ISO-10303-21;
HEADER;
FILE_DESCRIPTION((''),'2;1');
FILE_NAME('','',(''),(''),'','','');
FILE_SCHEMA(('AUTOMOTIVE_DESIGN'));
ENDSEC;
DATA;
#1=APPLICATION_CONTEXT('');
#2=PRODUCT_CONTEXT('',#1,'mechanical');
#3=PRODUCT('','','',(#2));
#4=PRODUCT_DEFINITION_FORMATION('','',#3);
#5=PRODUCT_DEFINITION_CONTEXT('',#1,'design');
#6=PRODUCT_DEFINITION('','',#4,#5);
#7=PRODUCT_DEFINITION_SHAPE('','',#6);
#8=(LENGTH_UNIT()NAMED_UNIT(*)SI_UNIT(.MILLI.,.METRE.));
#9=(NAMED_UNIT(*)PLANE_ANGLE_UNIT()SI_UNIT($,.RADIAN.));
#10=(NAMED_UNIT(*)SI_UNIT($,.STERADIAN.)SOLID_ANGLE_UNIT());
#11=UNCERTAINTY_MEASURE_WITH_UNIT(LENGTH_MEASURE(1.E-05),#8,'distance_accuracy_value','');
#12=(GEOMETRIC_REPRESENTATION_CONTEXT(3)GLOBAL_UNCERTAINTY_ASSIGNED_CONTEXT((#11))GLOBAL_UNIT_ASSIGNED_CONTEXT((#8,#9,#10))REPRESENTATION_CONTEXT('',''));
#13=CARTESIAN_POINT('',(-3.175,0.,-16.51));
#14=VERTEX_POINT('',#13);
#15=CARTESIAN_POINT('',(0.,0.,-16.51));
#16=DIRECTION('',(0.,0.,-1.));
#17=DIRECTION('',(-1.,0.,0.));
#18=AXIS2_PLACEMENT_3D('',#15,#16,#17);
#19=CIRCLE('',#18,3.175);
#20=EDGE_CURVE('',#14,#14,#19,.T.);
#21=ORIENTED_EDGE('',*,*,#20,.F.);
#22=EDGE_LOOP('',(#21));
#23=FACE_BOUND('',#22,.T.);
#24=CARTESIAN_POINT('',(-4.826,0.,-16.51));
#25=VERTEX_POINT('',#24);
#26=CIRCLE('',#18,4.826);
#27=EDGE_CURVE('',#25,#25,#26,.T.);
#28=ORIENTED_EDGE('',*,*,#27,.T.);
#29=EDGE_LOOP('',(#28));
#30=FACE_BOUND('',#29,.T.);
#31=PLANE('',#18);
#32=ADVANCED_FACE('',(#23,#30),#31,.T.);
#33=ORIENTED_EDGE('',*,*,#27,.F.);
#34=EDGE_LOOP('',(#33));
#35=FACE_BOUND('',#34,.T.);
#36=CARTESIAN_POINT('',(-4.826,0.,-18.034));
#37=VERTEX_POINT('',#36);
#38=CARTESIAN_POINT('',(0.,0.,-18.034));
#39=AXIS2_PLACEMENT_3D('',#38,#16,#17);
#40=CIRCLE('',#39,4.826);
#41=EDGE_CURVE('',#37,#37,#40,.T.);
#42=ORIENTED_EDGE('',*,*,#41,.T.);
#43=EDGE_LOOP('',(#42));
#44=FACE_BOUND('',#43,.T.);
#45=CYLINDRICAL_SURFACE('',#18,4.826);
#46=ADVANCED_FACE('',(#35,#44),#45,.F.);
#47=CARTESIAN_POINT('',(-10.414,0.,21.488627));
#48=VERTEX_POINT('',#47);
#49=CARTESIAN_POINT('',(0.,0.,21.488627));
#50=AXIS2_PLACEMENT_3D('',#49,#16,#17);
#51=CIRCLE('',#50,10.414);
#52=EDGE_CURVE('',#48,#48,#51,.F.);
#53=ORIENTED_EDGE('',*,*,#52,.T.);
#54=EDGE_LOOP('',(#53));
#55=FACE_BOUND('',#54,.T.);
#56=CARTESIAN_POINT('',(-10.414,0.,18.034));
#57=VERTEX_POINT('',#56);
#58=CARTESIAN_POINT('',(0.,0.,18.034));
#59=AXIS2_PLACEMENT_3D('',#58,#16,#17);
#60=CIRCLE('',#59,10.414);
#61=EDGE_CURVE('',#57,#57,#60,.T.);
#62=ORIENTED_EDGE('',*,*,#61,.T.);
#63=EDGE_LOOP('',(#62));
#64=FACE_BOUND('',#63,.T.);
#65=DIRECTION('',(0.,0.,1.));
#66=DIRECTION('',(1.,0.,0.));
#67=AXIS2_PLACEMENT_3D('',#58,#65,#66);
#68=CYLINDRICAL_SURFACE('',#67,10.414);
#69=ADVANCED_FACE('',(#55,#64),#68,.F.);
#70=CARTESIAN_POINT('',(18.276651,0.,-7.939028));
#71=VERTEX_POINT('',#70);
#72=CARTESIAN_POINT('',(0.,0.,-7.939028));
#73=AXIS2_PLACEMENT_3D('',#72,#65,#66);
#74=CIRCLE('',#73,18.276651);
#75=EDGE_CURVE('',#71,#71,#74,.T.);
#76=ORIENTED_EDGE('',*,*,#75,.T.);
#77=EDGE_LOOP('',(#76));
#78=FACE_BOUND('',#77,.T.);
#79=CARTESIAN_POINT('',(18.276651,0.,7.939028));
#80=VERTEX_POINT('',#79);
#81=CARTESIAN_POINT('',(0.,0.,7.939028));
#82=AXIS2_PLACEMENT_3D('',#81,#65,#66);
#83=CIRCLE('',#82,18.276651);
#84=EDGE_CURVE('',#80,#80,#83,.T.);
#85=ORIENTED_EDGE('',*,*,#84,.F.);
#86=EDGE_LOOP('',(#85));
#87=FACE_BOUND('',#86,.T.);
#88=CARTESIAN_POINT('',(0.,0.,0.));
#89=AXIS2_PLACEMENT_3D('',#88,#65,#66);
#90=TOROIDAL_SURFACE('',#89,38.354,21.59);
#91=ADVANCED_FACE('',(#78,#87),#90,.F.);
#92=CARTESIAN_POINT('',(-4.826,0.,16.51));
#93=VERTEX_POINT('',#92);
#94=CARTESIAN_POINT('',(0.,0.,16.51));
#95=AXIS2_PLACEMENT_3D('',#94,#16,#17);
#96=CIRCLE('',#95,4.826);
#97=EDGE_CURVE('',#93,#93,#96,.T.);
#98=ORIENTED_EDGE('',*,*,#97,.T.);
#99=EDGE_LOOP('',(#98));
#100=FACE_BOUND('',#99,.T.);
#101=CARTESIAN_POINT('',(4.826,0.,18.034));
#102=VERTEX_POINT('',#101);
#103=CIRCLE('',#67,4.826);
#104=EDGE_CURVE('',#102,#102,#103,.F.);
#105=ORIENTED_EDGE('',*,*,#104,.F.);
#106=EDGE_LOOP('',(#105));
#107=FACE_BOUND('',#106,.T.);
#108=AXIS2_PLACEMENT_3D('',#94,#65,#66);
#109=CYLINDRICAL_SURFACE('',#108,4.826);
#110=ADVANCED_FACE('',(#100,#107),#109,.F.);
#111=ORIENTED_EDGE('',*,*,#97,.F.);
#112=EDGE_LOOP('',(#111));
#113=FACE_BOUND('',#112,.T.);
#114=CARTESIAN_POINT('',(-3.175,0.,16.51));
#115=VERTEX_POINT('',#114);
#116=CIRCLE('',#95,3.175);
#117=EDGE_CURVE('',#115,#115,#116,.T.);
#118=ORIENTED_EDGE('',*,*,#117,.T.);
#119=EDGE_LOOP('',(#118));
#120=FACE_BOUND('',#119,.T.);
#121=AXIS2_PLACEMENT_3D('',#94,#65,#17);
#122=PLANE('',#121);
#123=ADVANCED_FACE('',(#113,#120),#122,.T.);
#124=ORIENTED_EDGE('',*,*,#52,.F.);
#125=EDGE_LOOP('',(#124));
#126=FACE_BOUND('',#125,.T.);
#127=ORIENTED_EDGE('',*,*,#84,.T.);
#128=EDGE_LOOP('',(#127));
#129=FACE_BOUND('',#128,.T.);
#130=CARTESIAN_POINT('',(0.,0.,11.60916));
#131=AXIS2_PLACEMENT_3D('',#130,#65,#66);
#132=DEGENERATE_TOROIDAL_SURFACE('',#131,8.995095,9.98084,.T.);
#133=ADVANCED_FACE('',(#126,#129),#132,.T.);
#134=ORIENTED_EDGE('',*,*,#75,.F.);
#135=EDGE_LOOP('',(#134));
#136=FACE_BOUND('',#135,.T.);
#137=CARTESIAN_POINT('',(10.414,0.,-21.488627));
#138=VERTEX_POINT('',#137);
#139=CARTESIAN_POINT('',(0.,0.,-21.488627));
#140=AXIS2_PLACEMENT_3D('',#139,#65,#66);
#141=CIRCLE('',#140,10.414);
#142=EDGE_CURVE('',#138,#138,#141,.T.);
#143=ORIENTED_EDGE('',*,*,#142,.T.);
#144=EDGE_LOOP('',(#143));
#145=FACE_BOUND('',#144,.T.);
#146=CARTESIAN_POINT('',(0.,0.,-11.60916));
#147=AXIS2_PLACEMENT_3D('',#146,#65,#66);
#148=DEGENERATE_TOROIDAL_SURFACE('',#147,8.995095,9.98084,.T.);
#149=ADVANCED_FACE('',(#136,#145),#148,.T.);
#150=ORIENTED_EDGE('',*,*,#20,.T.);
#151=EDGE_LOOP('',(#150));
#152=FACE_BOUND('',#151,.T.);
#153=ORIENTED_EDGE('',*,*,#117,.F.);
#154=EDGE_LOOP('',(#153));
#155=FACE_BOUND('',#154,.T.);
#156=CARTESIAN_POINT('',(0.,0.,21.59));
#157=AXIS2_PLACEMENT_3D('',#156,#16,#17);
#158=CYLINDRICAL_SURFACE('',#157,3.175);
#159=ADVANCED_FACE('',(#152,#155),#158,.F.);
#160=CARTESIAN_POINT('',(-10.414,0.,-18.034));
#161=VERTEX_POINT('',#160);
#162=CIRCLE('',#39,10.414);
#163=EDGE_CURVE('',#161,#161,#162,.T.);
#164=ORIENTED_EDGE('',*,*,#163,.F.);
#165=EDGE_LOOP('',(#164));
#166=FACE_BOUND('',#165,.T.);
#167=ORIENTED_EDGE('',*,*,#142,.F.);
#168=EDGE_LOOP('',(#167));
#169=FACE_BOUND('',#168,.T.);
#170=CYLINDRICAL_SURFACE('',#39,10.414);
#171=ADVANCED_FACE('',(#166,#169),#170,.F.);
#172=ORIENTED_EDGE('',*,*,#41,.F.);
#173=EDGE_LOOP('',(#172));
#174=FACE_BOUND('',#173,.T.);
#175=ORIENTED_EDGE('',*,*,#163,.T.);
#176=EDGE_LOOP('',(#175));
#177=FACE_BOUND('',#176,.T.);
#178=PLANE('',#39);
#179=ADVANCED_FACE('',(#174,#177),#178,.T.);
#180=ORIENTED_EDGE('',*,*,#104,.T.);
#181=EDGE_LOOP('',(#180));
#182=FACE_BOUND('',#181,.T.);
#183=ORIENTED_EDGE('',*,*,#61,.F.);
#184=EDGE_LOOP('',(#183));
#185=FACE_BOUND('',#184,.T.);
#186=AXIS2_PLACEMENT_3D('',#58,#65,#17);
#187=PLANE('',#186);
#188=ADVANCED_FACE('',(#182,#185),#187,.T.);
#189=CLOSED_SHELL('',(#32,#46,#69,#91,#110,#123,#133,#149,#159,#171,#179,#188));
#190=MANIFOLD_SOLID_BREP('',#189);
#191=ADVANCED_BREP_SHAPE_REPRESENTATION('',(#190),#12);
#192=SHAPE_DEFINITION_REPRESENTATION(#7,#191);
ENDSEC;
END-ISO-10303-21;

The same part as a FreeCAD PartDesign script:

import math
import FreeCAD as App
import Part
import Sketcher
Q = App.Units.Quantity

doc = App.newDocument("Part")
body = doc.addObject("PartDesign::Body", "Body")

# Sketch on XZ plane
sketch1 = body.newObject("Sketcher::SketchObject", "Sketch")
sketch1.AttachmentSupport = (doc.getObject("XZ_Plane"), [""])
sketch1.MapMode = "FlatFace"
sketch1.addGeometry(Part.LineSegment(App.Vector(-9, 22, 0), App.Vector(0, 22, 0)), False)
sketch1.addGeometry(Part.LineSegment(App.Vector(0, 22, 0), App.Vector(0, -22, 0)), False)
sketch1.addGeometry(Part.LineSegment(App.Vector(0, -22, 0), App.Vector(-9, -22, 0)), False)
sketch1.addGeometry(Part.ArcOfCircle(Part.Circle(App.Vector(-9, -12, 0), App.Vector(0, 0, 1), 10), math.radians(158), math.radians(270)), False)
sketch1.addGeometry(Part.ArcOfCircle(Part.Circle(App.Vector(-38, 0, 0), App.Vector(0, 0, 1), 22), math.radians(-22), math.radians(0)), False)
sketch1.addGeometry(Part.ArcOfCircle(Part.Circle(App.Vector(-38, 0, 0), App.Vector(0, 0, 1), 22), math.radians(0), math.radians(22)), False)
sketch1.addGeometry(Part.ArcOfCircle(Part.Circle(App.Vector(-9, 12, 0), App.Vector(0, 0, 1), 10), math.radians(152), math.radians(202)), False)
sketch1.addGeometry(Part.ArcOfCircle(Part.Circle(App.Vector(-9, 12, 0), App.Vector(0, 0, 1), 10), math.radians(90), math.radians(152)), False)
sketch1.addConstraint(Sketcher.Constraint("Coincident", 0, 2, 1, 1))
sketch1.addConstraint(Sketcher.Constraint("Coincident", 1, 2, 2, 1))
sketch1.addConstraint(Sketcher.Constraint("Tangent", 2, 2, 3, 2))
sketch1.addConstraint(Sketcher.Constraint("Tangent", 3, 1, 4, 1))
sketch1.addConstraint(Sketcher.Constraint("Tangent", 4, 2, 5, 1))
sketch1.addConstraint(Sketcher.Constraint("Tangent", 5, 2, 6, 2))
sketch1.addConstraint(Sketcher.Constraint("Tangent", 6, 1, 7, 2))
sketch1.addConstraint(Sketcher.Constraint("Tangent", 7, 1, 0, 1))
sketch1.addConstraint(Sketcher.Constraint("Horizontal", 0))
sketch1.addConstraint(Sketcher.Constraint("Vertical", 1))
sketch1.addConstraint(Sketcher.Constraint("Horizontal", 2))
sketch1.addConstraint(Sketcher.Constraint("Equal", 4, 5))
sketch1.addConstraint(Sketcher.Constraint("Equal", 3, 6))
sketch1.addConstraint(Sketcher.Constraint("Equal", 6, 7))
sketch1.addConstraint(Sketcher.Constraint("Symmetric", 0, 2, 1, 2, -1, 1))
sketch1.addConstraint(Sketcher.Constraint("PointOnObject", 4, 3, -1))
sketch1.addConstraint(Sketcher.Constraint("PointOnObject", 4, 2, -1))
sketch1.addConstraint(Sketcher.Constraint("Radius", 4, Q("0.85 in")))
sketch1.addConstraint(Sketcher.Constraint("DistanceY", 1, 2, 1, 1, Q("1.7 in")))
sketch1.addConstraint(Sketcher.Constraint("DistanceX", 4, 3, -1, 1, Q("1.51 in")))
sketch1.addConstraint(Sketcher.Constraint("Radius", 3, Q("9.98084 mm")))
sketch1.addConstraint(Sketcher.Constraint("DistanceY", -1, 1, 6, 1, Q("16.367339 mm")))
revolution = body.newObject("PartDesign::Revolution", "Revolution")
revolution.Profile = sketch1
revolution.ReferenceAxis = (sketch1, ["V_Axis"])
revolution.Angle = 360

# Sketch on XY plane
sketch2 = body.newObject("Sketcher::SketchObject", "Sketch001")
sketch2.AttachmentSupport = (doc.getObject("XY_Plane"), [""])
sketch2.MapMode = "FlatFace"
sketch2.AttachmentOffset = App.Placement(App.Vector(0, 0, -0.85 * 25.4), App.Rotation())
sketch2.addGeometry(Part.Circle(App.Vector(0, 0, 0), App.Vector(0, 0, 1), 10.4), False)
sketch2.addGeometry(Part.Circle(App.Vector(0, 0, 0), App.Vector(0, 0, 1), 4.8), False)
sketch2.addConstraint(Sketcher.Constraint("Coincident", 0, 3, -1, 1))
sketch2.addConstraint(Sketcher.Constraint("Coincident", 1, 3, -1, 1))
sketch2.addConstraint(Sketcher.Constraint("Diameter", 0, Q("0.82 in")))
sketch2.addConstraint(Sketcher.Constraint("Diameter", 1, Q("0.38 in")))
pocket1 = body.newObject("PartDesign::Pocket", "Pocket")
pocket1.Profile = sketch2
pocket1.Length = Q("0.14 in")
pocket1.Reversed = True

# Sketch on XY plane
sketch3 = body.newObject("Sketcher::SketchObject", "Sketch002")
sketch3.AttachmentSupport = (doc.getObject("XY_Plane"), [""])
sketch3.MapMode = "FlatFace"
sketch3.AttachmentOffset = App.Placement(App.Vector(0, 0, -0.85 * 25.4), App.Rotation())
sketch3.addGeometry(Part.Circle(App.Vector(0, 0, 0), App.Vector(0, 0, 1), 4.8), False)
sketch3.addGeometry(Part.Circle(App.Vector(0, 0, 0), App.Vector(0, 0, 1), 3.2), False)
sketch3.addConstraint(Sketcher.Constraint("Coincident", 0, 3, -1, 1))
sketch3.addConstraint(Sketcher.Constraint("Coincident", 1, 3, -1, 1))
sketch3.addConstraint(Sketcher.Constraint("Diameter", 0, Q("0.38 in")))
sketch3.addConstraint(Sketcher.Constraint("Diameter", 1, Q("0.25 in")))
pocket2 = body.newObject("PartDesign::Pocket", "Pocket001")
pocket2.Profile = sketch3
pocket2.Length = Q("0.2 in")
pocket2.Reversed = True

# Sketch on XY plane
sketch4 = body.newObject("Sketcher::SketchObject", "Sketch003")
sketch4.AttachmentSupport = (doc.getObject("XY_Plane"), [""])
sketch4.MapMode = "FlatFace"
sketch4.AttachmentOffset = App.Placement(App.Vector(0, 0, -0.85 * 25.4), App.Rotation())
sketch4.addGeometry(Part.Circle(App.Vector(0, 0, 0), App.Vector(0, 0, 1), 3.2), False)
sketch4.addConstraint(Sketcher.Constraint("Coincident", 0, 3, -1, 1))
sketch4.addConstraint(Sketcher.Constraint("Diameter", 0, Q("0.25 in")))
pocket3 = body.newObject("PartDesign::Pocket", "Pocket002")
pocket3.Profile = sketch4
pocket3.Type = "ThroughAll"
pocket3.Reversed = True
doc.recompute()

mirrored = body.newObject("PartDesign::Mirrored", "Mirrored")
mirrored.Originals = [pocket1, pocket2]
mirrored.MirrorPlane = (doc.getObject("XY_Plane"), [""])
body.Tip = mirrored

doc.recompute()
